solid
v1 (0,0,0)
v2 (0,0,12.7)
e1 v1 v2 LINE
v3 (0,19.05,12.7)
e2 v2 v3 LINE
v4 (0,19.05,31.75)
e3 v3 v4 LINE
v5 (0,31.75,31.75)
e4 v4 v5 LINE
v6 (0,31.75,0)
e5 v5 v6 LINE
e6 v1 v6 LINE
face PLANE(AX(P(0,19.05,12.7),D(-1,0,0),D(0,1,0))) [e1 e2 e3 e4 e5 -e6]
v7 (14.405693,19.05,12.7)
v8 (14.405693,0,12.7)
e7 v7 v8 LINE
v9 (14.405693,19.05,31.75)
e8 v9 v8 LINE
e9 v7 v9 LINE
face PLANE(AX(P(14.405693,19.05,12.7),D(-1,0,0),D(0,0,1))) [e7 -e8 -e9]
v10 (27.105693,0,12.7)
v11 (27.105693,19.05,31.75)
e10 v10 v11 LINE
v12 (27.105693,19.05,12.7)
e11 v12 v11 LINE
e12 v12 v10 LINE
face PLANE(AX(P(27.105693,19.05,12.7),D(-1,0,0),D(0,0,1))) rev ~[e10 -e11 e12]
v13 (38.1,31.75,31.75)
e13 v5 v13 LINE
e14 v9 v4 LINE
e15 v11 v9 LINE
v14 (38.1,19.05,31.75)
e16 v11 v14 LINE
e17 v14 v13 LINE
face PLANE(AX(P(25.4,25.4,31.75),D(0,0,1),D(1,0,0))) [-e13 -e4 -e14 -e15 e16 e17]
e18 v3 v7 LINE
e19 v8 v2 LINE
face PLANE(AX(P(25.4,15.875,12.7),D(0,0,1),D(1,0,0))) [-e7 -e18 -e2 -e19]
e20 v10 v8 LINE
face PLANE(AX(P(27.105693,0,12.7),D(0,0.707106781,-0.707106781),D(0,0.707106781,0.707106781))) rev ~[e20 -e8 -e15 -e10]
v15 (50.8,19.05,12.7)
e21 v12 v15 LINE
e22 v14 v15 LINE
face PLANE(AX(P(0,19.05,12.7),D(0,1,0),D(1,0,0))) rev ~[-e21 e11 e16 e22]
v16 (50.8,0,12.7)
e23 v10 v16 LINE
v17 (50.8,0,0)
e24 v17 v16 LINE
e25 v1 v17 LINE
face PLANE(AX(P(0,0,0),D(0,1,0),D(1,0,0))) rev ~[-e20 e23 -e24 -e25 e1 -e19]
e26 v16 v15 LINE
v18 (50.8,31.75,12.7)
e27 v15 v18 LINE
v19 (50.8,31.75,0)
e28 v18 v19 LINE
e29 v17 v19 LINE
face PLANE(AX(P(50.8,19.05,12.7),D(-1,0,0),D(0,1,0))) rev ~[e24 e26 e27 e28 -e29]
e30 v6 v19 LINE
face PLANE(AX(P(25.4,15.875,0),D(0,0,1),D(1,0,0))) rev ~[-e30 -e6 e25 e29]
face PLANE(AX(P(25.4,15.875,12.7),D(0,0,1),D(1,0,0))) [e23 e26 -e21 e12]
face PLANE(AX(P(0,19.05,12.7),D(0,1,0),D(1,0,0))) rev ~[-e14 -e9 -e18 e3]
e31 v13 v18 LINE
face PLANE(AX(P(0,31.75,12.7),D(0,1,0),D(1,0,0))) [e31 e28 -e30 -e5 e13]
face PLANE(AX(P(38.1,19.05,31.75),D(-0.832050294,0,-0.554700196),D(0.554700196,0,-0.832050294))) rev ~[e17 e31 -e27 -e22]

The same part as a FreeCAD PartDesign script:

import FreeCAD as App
import Part
import Sketcher

V = App.Vector
Q = App.Units.Quantity


def add_polygon(sketch, points):
    """Adds a closed chain of lines whose ends are joined by coincident constraints."""
    first, n = sketch.GeometryCount, len(points)
    for a, b in zip(points, points[1:] + points[:1]):
        sketch.addGeometry(Part.LineSegment(App.Vector(*a, 0), App.Vector(*b, 0)), False)
    for i in range(n):
        sketch.addConstraint(Sketcher.Constraint("Coincident", first + i, 2, first + (i + 1) % n, 1))

doc = App.newDocument("Part")
body = doc.addObject("PartDesign::Body", "Body")

# Sketch on XY plane
sketch1 = body.newObject("Sketcher::SketchObject", "Sketch")
sketch1.AttachmentSupport = (doc.getObject("XY_Plane"), [""])
sketch1.MapMode = "FlatFace"
add_polygon(sketch1, [(0, 32), (0, 0), (51, 0), (51, 32)])  # lines 0-3
sketch1.addConstraint([
    Sketcher.Constraint("Vertical", 0),
    Sketcher.Constraint("Horizontal", 1),
    Sketcher.Constraint("Vertical", 2),
    Sketcher.Constraint("Horizontal", 3),
    Sketcher.Constraint("Coincident", 0, 2, -1, 1),
    Sketcher.Constraint("DistanceX", 1, 1, 1, 2, Q("2 in")),
    Sketcher.Constraint("DistanceY", 0, 2, 0, 1, Q("1.25 in")),
])
pad1 = body.newObject("PartDesign::Pad", "Pad")
pad1.Profile = sketch1
pad1.Length = Q("0.5 in")

# Sketch on XY plane
sketch2 = body.newObject("Sketcher::SketchObject", "Sketch001")
sketch2.AttachmentSupport = (doc.getObject("XY_Plane"), [""])
sketch2.MapMode = "FlatFace"
sketch2.AttachmentOffset = App.Placement(V(0, 0, 0.5 * 25.4), App.Rotation())
add_polygon(sketch2, [(0, 32), (0, 19), (51, 19), (51, 32)])  # lines 0-3
sketch2.addConstraint([
    Sketcher.Constraint("Vertical", 0),
    Sketcher.Constraint("Horizontal", 1),
    Sketcher.Constraint("Vertical", 2),
    Sketcher.Constraint("Horizontal", 3),
    Sketcher.Constraint("PointOnObject", 0, 2, -2),
    Sketcher.Constraint("DistanceX", 1, 1, 1, 2, Q("2 in")),
    Sketcher.Constraint("DistanceY", 0, 2, 0, 1, Q("0.5 in")),
    Sketcher.Constraint("DistanceY", -1, 1, 0, 2, Q("0.75 in")),
])
pad2 = body.newObject("PartDesign::Pad", "Pad001")
pad2.Profile = sketch2
pad2.Length = Q("0.75 in")

# Sketch on XZ plane
sketch3 = body.newObject("Sketcher::SketchObject", "Sketch002")
sketch3.AttachmentSupport = (doc.getObject("XZ_Plane"), [""])
sketch3.MapMode = "FlatFace"
sketch3.AttachmentOffset = App.Placement(V(0, 0, -0.75 * 25.4), App.Rotation())
add_polygon(sketch3, [(38, 32), (51, 13), (51, 32)])  # lines 0-2
sketch3.addConstraint([
    Sketcher.Constraint("Vertical", 1),
    Sketcher.Constraint("Horizontal", 2),
    Sketcher.Constraint("DistanceX", 2, 2, 2, 1, Q("0.5 in")),
    Sketcher.Constraint("DistanceX", -1, 1, 0, 2, Q("2 in")),
    Sketcher.Constraint("DistanceY", 1, 1, 1, 2, Q("0.75 in")),
    Sketcher.Constraint("DistanceY", -1, 1, 0, 2, Q("0.5 in")),
])
pocket1 = body.newObject("PartDesign::Pocket", "Pocket")
pocket1.Profile = sketch3
pocket1.Length = Q("0.5 in")

# Sketch on XZ plane
sketch4 = body.newObject("Sketcher::SketchObject", "Sketch003")
sketch4.AttachmentSupport = (doc.getObject("XZ_Plane"), [""])
sketch4.MapMode = "FlatFace"
sketch4.AttachmentOffset = App.Placement(V(0, 0, -0.75 * 25.4), App.Rotation())
add_polygon(sketch4, [(14, 32), (14, 13), (27, 13), (27, 32)])  # lines 0-3
sketch4.addConstraint([
    Sketcher.Constraint("Vertical", 0),
    Sketcher.Constraint("Horizontal", 1),
    Sketcher.Constraint("Vertical", 2),
    Sketcher.Constraint("Horizontal", 3),
    Sketcher.Constraint("DistanceX", 1, 1, 1, 2, Q("0.5 in")),
    Sketcher.Constraint("DistanceY", 0, 2, 0, 1, Q("0.75 in")),
    Sketcher.Constraint("DistanceY", -1, 1, 0, 2, Q("0.5 in")),
    Sketcher.Constraint("DistanceX", -1, 1, 0, 2, Q("14.405693 mm")),
])
pad3 = body.newObject("PartDesign::Pad", "Pad002")
pad3.Profile = sketch4
pad3.Length = Q("0.75 in")

# Sketch on YZ plane
sketch5 = body.newObject("Sketcher::SketchObject", "Sketch004")
sketch5.AttachmentSupport = (doc.getObject("YZ_Plane"), [""])
sketch5.MapMode = "FlatFace"
sketch5.AttachmentOffset = App.Placement(V(0, 0, 27.105693), App.Rotation())
add_polygon(sketch5, [(0, 13), (19, 32), (0, 32)])  # lines 0-2
sketch5.addConstraint([
    Sketcher.Constraint("Horizontal", 1),
    Sketcher.Constraint("Vertical", 2),
    Sketcher.Constraint("PointOnObject", 1, 2, -2),
    Sketcher.Constraint("Equal", 1, 2),
    Sketcher.Constraint("DistanceX", 1, 2, 1, 1, Q("0.75 in")),
    Sketcher.Constraint("DistanceY", -1, 1, 2, 2, Q("0.5 in")),
])
pocket2 = body.newObject("PartDesign::Pocket", "Pocket001")
pocket2.Profile = sketch5
pocket2.Length = Q("1 in")

doc.recompute()
